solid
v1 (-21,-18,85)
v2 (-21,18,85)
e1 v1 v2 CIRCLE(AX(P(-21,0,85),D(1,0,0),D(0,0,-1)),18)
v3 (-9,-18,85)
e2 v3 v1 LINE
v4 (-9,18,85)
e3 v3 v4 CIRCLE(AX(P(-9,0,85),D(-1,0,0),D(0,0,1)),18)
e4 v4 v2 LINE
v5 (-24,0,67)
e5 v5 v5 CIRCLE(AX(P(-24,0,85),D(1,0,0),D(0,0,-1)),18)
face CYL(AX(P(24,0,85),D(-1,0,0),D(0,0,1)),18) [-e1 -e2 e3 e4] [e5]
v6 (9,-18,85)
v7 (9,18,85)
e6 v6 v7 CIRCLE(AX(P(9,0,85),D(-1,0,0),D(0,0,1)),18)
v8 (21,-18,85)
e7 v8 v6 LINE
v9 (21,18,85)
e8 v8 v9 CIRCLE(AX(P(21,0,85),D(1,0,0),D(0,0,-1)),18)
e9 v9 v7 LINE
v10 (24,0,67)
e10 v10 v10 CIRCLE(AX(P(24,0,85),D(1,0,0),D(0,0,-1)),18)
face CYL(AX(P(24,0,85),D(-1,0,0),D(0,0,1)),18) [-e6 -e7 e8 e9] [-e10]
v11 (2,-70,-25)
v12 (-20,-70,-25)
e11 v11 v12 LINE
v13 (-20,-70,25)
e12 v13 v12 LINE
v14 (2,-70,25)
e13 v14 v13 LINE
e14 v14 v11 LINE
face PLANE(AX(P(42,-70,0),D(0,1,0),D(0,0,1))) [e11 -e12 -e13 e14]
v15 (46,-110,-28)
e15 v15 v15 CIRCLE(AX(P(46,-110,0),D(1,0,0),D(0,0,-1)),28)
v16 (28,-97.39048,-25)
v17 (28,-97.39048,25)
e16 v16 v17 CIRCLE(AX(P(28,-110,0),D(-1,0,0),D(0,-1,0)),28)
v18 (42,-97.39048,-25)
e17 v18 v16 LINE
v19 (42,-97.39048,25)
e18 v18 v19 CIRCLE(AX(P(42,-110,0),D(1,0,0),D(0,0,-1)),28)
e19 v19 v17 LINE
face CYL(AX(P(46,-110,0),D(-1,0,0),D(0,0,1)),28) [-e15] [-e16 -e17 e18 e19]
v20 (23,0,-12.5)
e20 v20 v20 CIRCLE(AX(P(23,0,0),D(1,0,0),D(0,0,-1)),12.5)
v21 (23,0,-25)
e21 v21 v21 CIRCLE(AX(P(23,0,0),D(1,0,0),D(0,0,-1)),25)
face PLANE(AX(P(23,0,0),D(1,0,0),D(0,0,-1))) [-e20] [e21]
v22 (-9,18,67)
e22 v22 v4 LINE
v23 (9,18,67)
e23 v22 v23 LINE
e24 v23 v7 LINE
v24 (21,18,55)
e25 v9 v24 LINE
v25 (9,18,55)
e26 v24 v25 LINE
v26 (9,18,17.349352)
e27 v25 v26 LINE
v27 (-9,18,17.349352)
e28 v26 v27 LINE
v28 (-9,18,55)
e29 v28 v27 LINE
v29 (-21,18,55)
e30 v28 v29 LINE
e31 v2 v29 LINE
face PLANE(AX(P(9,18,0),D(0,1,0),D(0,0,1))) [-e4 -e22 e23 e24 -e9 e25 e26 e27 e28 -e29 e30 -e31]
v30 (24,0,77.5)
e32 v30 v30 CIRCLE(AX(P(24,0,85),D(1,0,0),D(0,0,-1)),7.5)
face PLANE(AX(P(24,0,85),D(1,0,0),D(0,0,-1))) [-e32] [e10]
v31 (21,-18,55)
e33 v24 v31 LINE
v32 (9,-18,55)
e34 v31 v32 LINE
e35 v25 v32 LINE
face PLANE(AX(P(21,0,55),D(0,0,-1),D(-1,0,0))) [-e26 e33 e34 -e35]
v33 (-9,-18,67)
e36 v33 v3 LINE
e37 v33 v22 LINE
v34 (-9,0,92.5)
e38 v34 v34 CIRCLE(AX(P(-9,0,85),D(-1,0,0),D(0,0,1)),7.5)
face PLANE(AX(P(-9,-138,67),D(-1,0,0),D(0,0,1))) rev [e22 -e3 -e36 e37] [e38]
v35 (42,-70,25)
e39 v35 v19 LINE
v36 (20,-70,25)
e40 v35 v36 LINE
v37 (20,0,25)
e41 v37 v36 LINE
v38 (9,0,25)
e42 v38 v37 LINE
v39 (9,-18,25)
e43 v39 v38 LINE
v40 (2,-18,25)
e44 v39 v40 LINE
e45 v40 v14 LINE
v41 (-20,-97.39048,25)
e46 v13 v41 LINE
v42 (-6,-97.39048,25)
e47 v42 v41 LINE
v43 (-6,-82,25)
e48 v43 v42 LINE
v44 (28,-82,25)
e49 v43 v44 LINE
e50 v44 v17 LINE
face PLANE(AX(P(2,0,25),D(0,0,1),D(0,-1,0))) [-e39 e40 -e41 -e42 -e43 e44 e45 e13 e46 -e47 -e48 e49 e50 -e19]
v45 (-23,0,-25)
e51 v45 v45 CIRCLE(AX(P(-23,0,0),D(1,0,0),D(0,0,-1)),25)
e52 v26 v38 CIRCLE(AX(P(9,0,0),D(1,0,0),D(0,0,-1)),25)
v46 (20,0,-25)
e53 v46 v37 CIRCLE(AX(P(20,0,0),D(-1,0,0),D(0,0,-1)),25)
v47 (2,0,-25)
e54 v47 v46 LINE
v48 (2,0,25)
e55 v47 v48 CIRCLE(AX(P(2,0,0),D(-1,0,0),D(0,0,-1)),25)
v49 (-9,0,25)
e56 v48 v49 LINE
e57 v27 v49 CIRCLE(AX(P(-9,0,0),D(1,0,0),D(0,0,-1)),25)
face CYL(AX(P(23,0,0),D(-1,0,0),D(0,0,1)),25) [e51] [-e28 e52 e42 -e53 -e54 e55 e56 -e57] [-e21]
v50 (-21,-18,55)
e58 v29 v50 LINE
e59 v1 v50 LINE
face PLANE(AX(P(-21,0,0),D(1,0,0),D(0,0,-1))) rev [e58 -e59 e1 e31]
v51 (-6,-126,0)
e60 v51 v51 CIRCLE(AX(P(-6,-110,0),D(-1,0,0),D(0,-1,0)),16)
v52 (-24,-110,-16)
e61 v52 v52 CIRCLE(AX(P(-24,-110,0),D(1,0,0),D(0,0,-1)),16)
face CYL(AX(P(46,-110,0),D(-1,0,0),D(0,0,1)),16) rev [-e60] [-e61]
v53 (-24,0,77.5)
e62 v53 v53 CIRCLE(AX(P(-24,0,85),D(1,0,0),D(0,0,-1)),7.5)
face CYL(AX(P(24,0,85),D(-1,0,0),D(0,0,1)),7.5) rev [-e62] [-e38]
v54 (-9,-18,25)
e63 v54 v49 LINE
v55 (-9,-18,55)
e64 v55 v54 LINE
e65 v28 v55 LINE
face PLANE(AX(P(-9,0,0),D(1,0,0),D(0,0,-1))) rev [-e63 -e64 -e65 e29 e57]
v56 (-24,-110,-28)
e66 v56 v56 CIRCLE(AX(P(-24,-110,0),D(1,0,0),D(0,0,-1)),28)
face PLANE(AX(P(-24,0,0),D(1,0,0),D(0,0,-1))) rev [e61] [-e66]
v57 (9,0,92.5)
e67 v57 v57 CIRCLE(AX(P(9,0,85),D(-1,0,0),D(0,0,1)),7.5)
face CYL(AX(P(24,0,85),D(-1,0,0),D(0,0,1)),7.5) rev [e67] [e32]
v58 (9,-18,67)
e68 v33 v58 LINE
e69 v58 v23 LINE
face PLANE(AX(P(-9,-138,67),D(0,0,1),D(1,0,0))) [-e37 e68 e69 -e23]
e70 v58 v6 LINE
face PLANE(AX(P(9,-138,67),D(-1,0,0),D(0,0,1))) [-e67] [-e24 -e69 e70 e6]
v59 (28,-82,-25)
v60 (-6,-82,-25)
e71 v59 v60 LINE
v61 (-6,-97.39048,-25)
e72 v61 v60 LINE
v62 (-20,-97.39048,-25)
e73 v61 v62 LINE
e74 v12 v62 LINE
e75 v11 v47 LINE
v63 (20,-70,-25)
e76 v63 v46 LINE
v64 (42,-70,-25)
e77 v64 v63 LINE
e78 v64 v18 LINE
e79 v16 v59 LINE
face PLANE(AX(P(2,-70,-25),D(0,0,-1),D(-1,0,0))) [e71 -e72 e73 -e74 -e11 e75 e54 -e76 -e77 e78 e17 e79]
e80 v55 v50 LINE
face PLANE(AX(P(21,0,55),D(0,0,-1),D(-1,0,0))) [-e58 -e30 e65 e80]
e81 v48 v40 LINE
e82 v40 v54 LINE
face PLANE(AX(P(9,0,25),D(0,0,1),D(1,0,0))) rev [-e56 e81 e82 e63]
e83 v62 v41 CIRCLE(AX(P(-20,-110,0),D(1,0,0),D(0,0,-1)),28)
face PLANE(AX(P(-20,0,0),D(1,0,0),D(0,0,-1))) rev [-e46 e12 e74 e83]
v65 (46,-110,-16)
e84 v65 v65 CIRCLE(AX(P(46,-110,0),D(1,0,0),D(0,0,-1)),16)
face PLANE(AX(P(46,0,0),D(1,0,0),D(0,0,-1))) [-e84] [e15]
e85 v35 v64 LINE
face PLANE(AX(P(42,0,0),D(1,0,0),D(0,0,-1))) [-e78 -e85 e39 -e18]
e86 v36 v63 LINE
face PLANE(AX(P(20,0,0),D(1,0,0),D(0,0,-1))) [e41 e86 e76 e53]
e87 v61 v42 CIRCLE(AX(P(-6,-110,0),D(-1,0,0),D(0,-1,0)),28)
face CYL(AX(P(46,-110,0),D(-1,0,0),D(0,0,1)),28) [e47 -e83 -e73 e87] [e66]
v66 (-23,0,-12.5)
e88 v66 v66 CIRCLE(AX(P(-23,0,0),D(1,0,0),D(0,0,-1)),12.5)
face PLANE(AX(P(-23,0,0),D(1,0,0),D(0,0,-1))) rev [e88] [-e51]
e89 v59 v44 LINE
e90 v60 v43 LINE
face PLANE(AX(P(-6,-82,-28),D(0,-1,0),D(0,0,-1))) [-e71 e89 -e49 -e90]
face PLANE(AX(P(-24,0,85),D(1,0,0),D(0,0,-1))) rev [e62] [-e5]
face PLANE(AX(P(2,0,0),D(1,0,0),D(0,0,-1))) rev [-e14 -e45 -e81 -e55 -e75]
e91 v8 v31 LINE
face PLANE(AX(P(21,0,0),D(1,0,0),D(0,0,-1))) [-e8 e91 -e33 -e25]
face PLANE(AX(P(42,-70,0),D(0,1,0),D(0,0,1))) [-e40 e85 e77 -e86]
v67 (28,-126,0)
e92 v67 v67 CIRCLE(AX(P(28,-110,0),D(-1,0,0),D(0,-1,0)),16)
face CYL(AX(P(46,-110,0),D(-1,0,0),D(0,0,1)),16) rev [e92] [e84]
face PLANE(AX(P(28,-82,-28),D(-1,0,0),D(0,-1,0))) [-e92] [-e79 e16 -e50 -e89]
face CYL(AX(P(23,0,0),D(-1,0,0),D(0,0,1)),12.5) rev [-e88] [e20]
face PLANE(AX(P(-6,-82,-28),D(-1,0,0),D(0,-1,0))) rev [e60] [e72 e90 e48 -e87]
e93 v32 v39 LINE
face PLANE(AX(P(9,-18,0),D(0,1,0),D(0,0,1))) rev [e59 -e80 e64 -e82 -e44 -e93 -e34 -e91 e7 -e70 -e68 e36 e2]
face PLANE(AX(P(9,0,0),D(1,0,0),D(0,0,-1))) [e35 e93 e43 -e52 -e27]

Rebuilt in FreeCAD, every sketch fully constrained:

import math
import FreeCAD as App
import Part
import Sketcher
Q = App.Units.Quantity

doc = App.newDocument("Part")
params = doc.addObject("Spreadsheet::Sheet", "Params")
for row, (alias, value) in enumerate([
    ("sketch1_diameter", "50 mm"),
    ("sketch1_diameter2", "25 mm"),
    ("pad1_length", "46 mm"),
    ("sketch2_radius", "25 mm"),
    ("sketch2_width", "70 mm"),
    ("pad2_length", "18 mm"),
    ("sketch3_diameter", "56 mm"),
    ("sketch3_diameter2", "32 mm"),
    ("pad3_length", "70 mm"),
    ("sketch4_radius", "28 mm"),
    ("sketch4_height", "50 mm"),
    ("pad4_length", "62 mm"),
    ("sketch5_width", "34 mm"),
    ("sketch5_height", "70 mm"),
    ("sketch6_diameter", "36 mm"),
    ("sketch6_diameter2", "15 mm"),
    ("pad5_length", "48 mm"),
    ("sketch7_radius", "18 mm"),
    ("sketch7_height", "30 mm"),
    ("pad6_length", "42 mm"),
    ("sketch8_radius", "25 mm"),
    ("sketch8_width", "36 mm"),
    ("sketch8_width2", "18 mm"),
    ("sketch8_height", "30 mm"),
    ("pad7_length", "18 mm"),
    ("sketch9_width", "18 mm"),
    ("sketch9_height", "50 mm"),
], start=1):
    params.set(f"A{row}", alias)
    params.set(f"B{row}", "=" + value)
    params.setAlias(f"B{row}", alias)

body = doc.addObject("PartDesign::Body", "Body")

sketch1 = body.newObject("Sketcher::SketchObject", "Sketch")
sketch1.AttachmentSupport = (doc.getObject("YZ_Plane"), [""])
sketch1.MapMode = "FlatFace"
sketch1.addGeometry([
    Part.Circle(App.Vector(0, 0, 0), App.Vector(0, 0, 1), 25),
    Part.Circle(App.Vector(0, 0, 0), App.Vector(0, 0, 1), 12),
], False)
sketch1.addConstraint([
    Sketcher.Constraint("Coincident", 0, 3, -1, 1),
    Sketcher.Constraint("Coincident", 1, 3, -1, 1),
    Sketcher.Constraint("Diameter", 0, Q("50 mm")),
    Sketcher.Constraint("Diameter", 1, Q("25 mm")),
])
sketch1.setExpression("Constraints[2]", "Params.sketch1_diameter")
sketch1.setExpression("Constraints[3]", "Params.sketch1_diameter2")
pad1 = body.newObject("PartDesign::Pad", "Pad")
pad1.Profile = sketch1
pad1.setExpression("Length", "Params.pad1_length")
pad1.Midplane = True

sketch2 = body.newObject("Sketcher::SketchObject", "Sketch001")
sketch2.AttachmentSupport = (doc.getObject("YZ_Plane"), [""])
sketch2.MapMode = "FlatFace"
sketch2.AttachmentOffset = App.Placement(App.Vector(0, 0, 20), App.Rotation())
sketch2.addGeometry([
    Part.LineSegment(App.Vector(0, 25, 0), App.Vector(-70, 25, 0)),
    Part.LineSegment(App.Vector(-70, 25, 0), App.Vector(-70, -25, 0)),
    Part.LineSegment(App.Vector(-70, -25, 0), App.Vector(0, -25, 0)),
    Part.ArcOfCircle(Part.Circle(App.Vector(0, 0, 0), App.Vector(0, 0, 1), 25), math.radians(90), math.radians(270)),
], False)
sketch2.addConstraint([
    Sketcher.Constraint("Coincident", 0, 2, 1, 1),
    Sketcher.Constraint("Coincident", 1, 2, 2, 1),
    Sketcher.Constraint("Tangent", 2, 2, 3, 2),
    Sketcher.Constraint("Tangent", 3, 1, 0, 1),
    Sketcher.Constraint("Horizontal", 0),
    Sketcher.Constraint("Vertical", 1),
    Sketcher.Constraint("Horizontal", 2),
    Sketcher.Constraint("Coincident", 3, 3, -1, 1),
    Sketcher.Constraint("Radius", 3, Q("25 mm")),
    Sketcher.Constraint("DistanceX", 0, 2, 0, 1, Q("70 mm")),
])
sketch2.setExpression("Constraints[8]", "Params.sketch2_radius")
sketch2.setExpression("Constraints[9]", "Params.sketch2_width")
pad2 = body.newObject("PartDesign::Pad", "Pad001")
pad2.Profile = sketch2
pad2.setExpression("Length", "Params.pad2_length")
pad2.Reversed = True
body2 = doc.addObject("PartDesign::Body", "Body001")

sketch3 = body2.newObject("Sketcher::SketchObject", "Sketch002")
sketch3.AttachmentSupport = (doc.getObject("YZ_Plane001"), [""])
sketch3.MapMode = "FlatFace"
sketch3.AttachmentOffset = App.Placement(App.Vector(0, 0, 11), App.Rotation())
sketch3.addGeometry([
    Part.Circle(App.Vector(-110, 0, 0), App.Vector(0, 0, 1), 28),
    Part.Circle(App.Vector(-110, 0, 0), App.Vector(0, 0, 1), 16),
], False)
sketch3.addConstraint([
    Sketcher.Constraint("Coincident", 1, 3, 0, 3),
    Sketcher.Constraint("PointOnObject", 0, 3, -1),
    Sketcher.Constraint("Diameter", 0, Q("56 mm")),
    Sketcher.Constraint("Diameter", 1, Q("32 mm")),
    Sketcher.Constraint("DistanceX", 0, 3, -1, 1, Q("110 mm")),
])
sketch3.setExpression("Constraints[2]", "Params.sketch3_diameter")
sketch3.setExpression("Constraints[3]", "Params.sketch3_diameter2")
pad3 = body2.newObject("PartDesign::Pad", "Pad002")
pad3.Profile = sketch3
pad3.setExpression("Length", "Params.pad3_length")
pad3.Midplane = True
body.AllowCompound = True
doc.recompute()

boolean = body.newObject("PartDesign::Boolean", "Boolean")
boolean.Type = "Fuse"
boolean.addObjects([body2])

sketch4 = body.newObject("Sketcher::SketchObject", "Sketch003")
sketch4.AttachmentSupport = (doc.getObject("YZ_Plane"), [""])
sketch4.MapMode = "FlatFace"
sketch4.AttachmentOffset = App.Placement(App.Vector(0, 0, 11), App.Rotation())
sketch4.addGeometry([
    Part.LineSegment(App.Vector(-70, 25, 0), App.Vector(-97, 25, 0)),
    Part.ArcOfCircle(Part.Circle(App.Vector(-110, 0, 0), App.Vector(0, 0, 1), 28), math.radians(0), math.radians(63)),
    Part.ArcOfCircle(Part.Circle(App.Vector(-110, 0, 0), App.Vector(0, 0, 1), 28), math.radians(-63), math.radians(0)),
    Part.LineSegment(App.Vector(-97, -25, 0), App.Vector(-70, -25, 0)),
    Part.LineSegment(App.Vector(-70, -25, 0), App.Vector(-70, 25, 0)),
], False)
sketch4.addConstraint([
    Sketcher.Constraint("Coincident", 0, 2, 1, 2),
    Sketcher.Constraint("Tangent", 1, 1, 2, 2),
    Sketcher.Constraint("Coincident", 2, 1, 3, 1),
    Sketcher.Constraint("Coincident", 3, 2, 4, 1),
    Sketcher.Constraint("Coincident", 4, 2, 0, 1),
    Sketcher.Constraint("Horizontal", 0),
    Sketcher.Constraint("Horizontal", 3),
    Sketcher.Constraint("Vertical", 4),
    Sketcher.Constraint("Equal", 1, 2),
    Sketcher.Constraint("Symmetric", 0, 2, 2, 1, -1),
    Sketcher.Constraint("PointOnObject", 1, 1, -1),
    Sketcher.Constraint("Radius", 1, Q("28 mm")),
    Sketcher.Constraint("DistanceY", 4, 1, 4, 2, Q("50 mm")),
    Sketcher.Constraint("DistanceX", 1, 3, -1, 1, Q("110 mm")),
    Sketcher.Constraint("DistanceX", 3, 2, -1, 1, Q("70 mm")),
])
sketch4.setExpression("Constraints[11]", "Params.sketch4_radius")
sketch4.setExpression("Constraints[12]", "Params.sketch4_height")
pad4 = body.newObject("PartDesign::Pad", "Pad003")
pad4.Profile = sketch4
pad4.setExpression("Length", "Params.pad4_length")
pad4.Midplane = True

sketch5 = body.newObject("Sketcher::SketchObject", "Sketch004")
sketch5.AttachmentSupport = (doc.getObject("XY_Plane"), [""])
sketch5.MapMode = "FlatFace"
sketch5.AttachmentOffset = App.Placement(App.Vector(0, 0, 25), App.Rotation())
sketch5.addGeometry([
    Part.LineSegment(App.Vector(-6, -82, 0), App.Vector(-6, -152, 0)),
    Part.LineSegment(App.Vector(-6, -152, 0), App.Vector(28, -152, 0)),
    Part.LineSegment(App.Vector(28, -152, 0), App.Vector(28, -82, 0)),
    Part.LineSegment(App.Vector(28, -82, 0), App.Vector(-6, -82, 0)),
], False)
sketch5.addConstraint([
    Sketcher.Constraint("Coincident", 0, 2, 1, 1),
    Sketcher.Constraint("Coincident", 1, 2, 2, 1),
    Sketcher.Constraint("Coincident", 2, 2, 3, 1),
    Sketcher.Constraint("Coincident", 3, 2, 0, 1),
    Sketcher.Constraint("Vertical", 0),
    Sketcher.Constraint("Horizontal", 1),
    Sketcher.Constraint("Vertical", 2),
    Sketcher.Constraint("Horizontal", 3),
    Sketcher.Constraint("DistanceX", 1, 1, 1, 2, Q("34 mm")),
    Sketcher.Constraint("DistanceY", 0, 2, 0, 1, Q("70 mm")),
    Sketcher.Constraint("DistanceX", 0, 2, -1, 1, Q("6 mm")),
    Sketcher.Constraint("DistanceY", 0, 2, -1, 1, Q("152 mm")),
])
sketch5.setExpression("Constraints[8]", "Params.sketch5_width")
sketch5.setExpression("Constraints[9]", "Params.sketch5_height")
pocket1 = body.newObject("PartDesign::Pocket", "Pocket")
pocket1.Profile = sketch5
pocket1.Type = "ThroughAll"
pocket1.Midplane = True
body3 = doc.addObject("PartDesign::Body", "Body002")

sketch6 = body3.newObject("Sketcher::SketchObject", "Sketch005")
sketch6.AttachmentSupport = (doc.getObject("YZ_Plane002"), [""])
sketch6.MapMode = "FlatFace"
sketch6.addGeometry([
    Part.Circle(App.Vector(0, 85, 0), App.Vector(0, 0, 1), 18),
    Part.Circle(App.Vector(0, 85, 0), App.Vector(0, 0, 1), 8),
], False)
sketch6.addConstraint([
    Sketcher.Constraint("Coincident", 1, 3, 0, 3),
    Sketcher.Constraint("PointOnObject", 0, 3, -2),
    Sketcher.Constraint("Diameter", 0, Q("36 mm")),
    Sketcher.Constraint("Diameter", 1, Q("15 mm")),
    Sketcher.Constraint("DistanceY", -1, 1, 0, 3, Q("85 mm")),
])
sketch6.setExpression("Constraints[2]", "Params.sketch6_diameter")
sketch6.setExpression("Constraints[3]", "Params.sketch6_diameter2")
pad5 = body3.newObject("PartDesign::Pad", "Pad004")
pad5.Profile = sketch6
pad5.setExpression("Length", "Params.pad5_length")
pad5.Midplane = True

sketch7 = body3.newObject("Sketcher::SketchObject", "Sketch006")
sketch7.AttachmentSupport = (doc.getObject("YZ_Plane002"), [""])
sketch7.MapMode = "FlatFace"
sketch7.addGeometry([
    Part.LineSegment(App.Vector(18, 55, 0), App.Vector(18, 85, 0)),
    Part.ArcOfCircle(Part.Circle(App.Vector(0, 85, 0), App.Vector(0, 0, 1), 18), math.radians(180), math.radians(360)),
    Part.LineSegment(App.Vector(-18, 85, 0), App.Vector(-18, 55, 0)),
    Part.LineSegment(App.Vector(-18, 55, 0), App.Vector(18, 55, 0)),
], False)
sketch7.addConstraint([
    Sketcher.Constraint("Tangent", 0, 2, 1, 2),
    Sketcher.Constraint("Tangent", 1, 1, 2, 1),
    Sketcher.Constraint("Coincident", 2, 2, 3, 1),
    Sketcher.Constraint("Coincident", 3, 2, 0, 1),
    Sketcher.Constraint("Vertical", 0),
    Sketcher.Constraint("Vertical", 2),
    Sketcher.Constraint("Horizontal", 3),
    Sketcher.Constraint("PointOnObject", 1, 3, -2),
    Sketcher.Constraint("Radius", 1, Q("18 mm")),
    Sketcher.Constraint("DistanceY", 0, 1, 0, 2, Q("30 mm")),
    Sketcher.Constraint("DistanceY", -1, 1, 1, 3, Q("85 mm")),
])
sketch7.setExpression("Constraints[8]", "Params.sketch7_radius")
sketch7.setExpression("Constraints[9]", "Params.sketch7_height")
pad6 = body3.newObject("PartDesign::Pad", "Pad005")
pad6.Profile = sketch7
pad6.setExpression("Length", "Params.pad6_length")
pad6.Midplane = True
body.AllowCompound = True
doc.recompute()

boolean2 = body.newObject("PartDesign::Boolean", "Boolean001")
boolean2.Type = "Fuse"
boolean2.addObjects([body3])

sketch8 = body.newObject("Sketcher::SketchObject", "Sketch007")
sketch8.AttachmentSupport = (doc.getObject("YZ_Plane"), [""])
sketch8.MapMode = "FlatFace"
sketch8.addGeometry([
    Part.LineSegment(App.Vector(18, 17, 0), App.Vector(18, 55, 0)),
    Part.LineSegment(App.Vector(18, 55, 0), App.Vector(-18, 55, 0)),
    Part.LineSegment(App.Vector(-18, 55, 0), App.Vector(-18, 25, 0)),
    Part.LineSegment(App.Vector(-18, 25, 0), App.Vector(0, 25, 0)),
    Part.ArcOfCircle(Part.Circle(App.Vector(0, 0, 0), App.Vector(0, 0, 1), 25), math.radians(44), math.radians(90)),
], False)
sketch8.addConstraint([
    Sketcher.Constraint("Coincident", 0, 2, 1, 1),
    Sketcher.Constraint("Coincident", 1, 2, 2, 1),
    Sketcher.Constraint("Coincident", 2, 2, 3, 1),
    Sketcher.Constraint("Tangent", 3, 2, 4, 2),
    Sketcher.Constraint("Coincident", 4, 1, 0, 1),
    Sketcher.Constraint("Vertical", 0),
    Sketcher.Constraint("Horizontal", 1),
    Sketcher.Constraint("Vertical", 2),
    Sketcher.Constraint("Horizontal", 3),
    Sketcher.Constraint("Coincident", 4, 3, -1, 1),
    Sketcher.Constraint("Radius", 4, Q("25 mm")),
    Sketcher.Constraint("DistanceX", 1, 2, 1, 1, Q("36 mm")),
    Sketcher.Constraint("DistanceX", 3, 1, 3, 2, Q("18 mm")),
    Sketcher.Constraint("DistanceY", 2, 2, 2, 1, Q("30 mm")),
])
sketch8.setExpression("Constraints[10]", "Params.sketch8_radius")
sketch8.setExpression("Constraints[11]", "Params.sketch8_width")
sketch8.setExpression("Constraints[12]", "Params.sketch8_width2")
sketch8.setExpression("Constraints[13]", "Params.sketch8_height")
pad7 = body.newObject("PartDesign::Pad", "Pad006")
pad7.Profile = sketch8
pad7.setExpression("Length", "Params.pad7_length")
pad7.Midplane = True

sketch9 = body.newObject("Sketcher::SketchObject", "Sketch008")
sketch9.AttachmentSupport = (doc.getObject("XZ_Plane"), [""])
sketch9.MapMode = "FlatFace"
sketch9.AttachmentOffset = App.Placement(App.Vector(0, 0, -18), App.Rotation())
sketch9.addGeometry([
    Part.LineSegment(App.Vector(-9, 67, 0), App.Vector(-9, 117, 0)),
    Part.LineSegment(App.Vector(-9, 117, 0), App.Vector(9, 117, 0)),
    Part.LineSegment(App.Vector(9, 117, 0), App.Vector(9, 67, 0)),
    Part.LineSegment(App.Vector(9, 67, 0), App.Vector(-9, 67, 0)),
], False)
sketch9.addConstraint([
    Sketcher.Constraint("Coincident", 0, 2, 1, 1),
    Sketcher.Constraint("Coincident", 1, 2, 2, 1),
    Sketcher.Constraint("Coincident", 2, 2, 3, 1),
    Sketcher.Constraint("Coincident", 3, 2, 0, 1),
    Sketcher.Constraint("Vertical", 0),
    Sketcher.Constraint("Horizontal", 1),
    Sketcher.Constraint("Vertical", 2),
    Sketcher.Constraint("Horizontal", 3),
    Sketcher.Constraint("DistanceX", 1, 1, 1, 2, Q("18 mm")),
    Sketcher.Constraint("DistanceY", 0, 1, 0, 2, Q("50 mm")),
    Sketcher.Constraint("DistanceX", 0, 2, -1, 1, Q("9 mm")),
    Sketcher.Constraint("DistanceY", -1, 1, 0, 2, Q("117 mm")),
])
sketch9.setExpression("Constraints[8]", "Params.sketch9_width")
sketch9.setExpression("Constraints[9]", "Params.sketch9_height")
pocket2 = body.newObject("PartDesign::Pocket", "Pocket001")
pocket2.Profile = sketch9
pocket2.Type = "ThroughAll"
pocket2.Midplane = True

doc.recompute()
